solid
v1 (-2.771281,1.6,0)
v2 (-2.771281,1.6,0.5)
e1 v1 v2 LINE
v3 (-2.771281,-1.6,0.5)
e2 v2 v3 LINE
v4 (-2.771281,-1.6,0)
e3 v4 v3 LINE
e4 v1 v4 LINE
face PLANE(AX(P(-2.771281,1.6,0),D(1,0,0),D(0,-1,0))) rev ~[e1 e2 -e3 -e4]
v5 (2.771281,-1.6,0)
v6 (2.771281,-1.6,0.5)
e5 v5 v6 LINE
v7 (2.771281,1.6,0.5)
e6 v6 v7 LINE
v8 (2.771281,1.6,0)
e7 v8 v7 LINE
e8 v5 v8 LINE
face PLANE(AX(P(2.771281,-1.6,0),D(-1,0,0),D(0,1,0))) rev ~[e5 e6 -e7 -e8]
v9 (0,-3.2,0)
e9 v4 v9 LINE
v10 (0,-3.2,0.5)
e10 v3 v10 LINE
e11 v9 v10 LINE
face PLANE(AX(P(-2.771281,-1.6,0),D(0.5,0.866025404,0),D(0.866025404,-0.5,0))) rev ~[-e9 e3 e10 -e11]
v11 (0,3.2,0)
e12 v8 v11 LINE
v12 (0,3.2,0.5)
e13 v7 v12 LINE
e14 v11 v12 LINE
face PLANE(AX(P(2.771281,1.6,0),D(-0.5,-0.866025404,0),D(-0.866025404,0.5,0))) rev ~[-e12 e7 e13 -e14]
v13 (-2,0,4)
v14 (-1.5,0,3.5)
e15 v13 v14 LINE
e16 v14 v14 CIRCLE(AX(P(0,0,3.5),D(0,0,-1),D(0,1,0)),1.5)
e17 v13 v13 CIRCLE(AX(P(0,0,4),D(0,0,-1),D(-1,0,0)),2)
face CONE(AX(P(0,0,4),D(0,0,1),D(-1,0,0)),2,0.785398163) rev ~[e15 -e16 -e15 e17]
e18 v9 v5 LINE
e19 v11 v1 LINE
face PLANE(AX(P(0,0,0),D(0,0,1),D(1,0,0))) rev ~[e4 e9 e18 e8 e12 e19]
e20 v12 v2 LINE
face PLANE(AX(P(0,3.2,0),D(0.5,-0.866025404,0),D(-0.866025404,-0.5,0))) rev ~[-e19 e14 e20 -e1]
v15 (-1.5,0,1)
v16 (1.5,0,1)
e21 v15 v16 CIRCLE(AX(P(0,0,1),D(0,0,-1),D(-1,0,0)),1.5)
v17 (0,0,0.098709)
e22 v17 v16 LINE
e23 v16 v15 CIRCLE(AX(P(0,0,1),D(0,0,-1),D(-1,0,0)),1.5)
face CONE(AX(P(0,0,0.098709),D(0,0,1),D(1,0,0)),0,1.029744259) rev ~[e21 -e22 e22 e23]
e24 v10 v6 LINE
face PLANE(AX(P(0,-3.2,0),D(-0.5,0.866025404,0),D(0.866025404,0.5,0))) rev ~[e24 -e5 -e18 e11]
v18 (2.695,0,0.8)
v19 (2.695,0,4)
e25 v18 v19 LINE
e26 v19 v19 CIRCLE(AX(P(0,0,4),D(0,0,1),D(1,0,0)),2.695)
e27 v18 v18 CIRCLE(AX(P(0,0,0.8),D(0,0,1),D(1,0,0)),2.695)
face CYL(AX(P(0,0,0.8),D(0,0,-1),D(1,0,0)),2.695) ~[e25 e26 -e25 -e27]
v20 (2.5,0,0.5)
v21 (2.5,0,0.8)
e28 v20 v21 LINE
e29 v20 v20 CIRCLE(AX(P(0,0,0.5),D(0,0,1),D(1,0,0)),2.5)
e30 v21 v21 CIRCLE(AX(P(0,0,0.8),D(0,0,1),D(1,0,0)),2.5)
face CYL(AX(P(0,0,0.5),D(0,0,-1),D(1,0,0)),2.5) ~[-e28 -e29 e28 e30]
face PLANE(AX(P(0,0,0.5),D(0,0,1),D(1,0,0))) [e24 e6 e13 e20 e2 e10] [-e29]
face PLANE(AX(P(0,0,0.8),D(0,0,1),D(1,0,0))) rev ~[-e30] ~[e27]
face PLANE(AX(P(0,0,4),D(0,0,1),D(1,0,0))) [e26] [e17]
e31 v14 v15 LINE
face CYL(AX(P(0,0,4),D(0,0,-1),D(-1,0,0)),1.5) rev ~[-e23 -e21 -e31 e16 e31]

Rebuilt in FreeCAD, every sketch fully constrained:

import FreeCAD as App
import Part
import Sketcher

V = App.Vector
Q = App.Units.Quantity


def add_polygon(sketch, points):
    """Adds a closed chain of lines whose ends are joined by coincident constraints."""
    first, n = sketch.GeometryCount, len(points)
    for a, b in zip(points, points[1:] + points[:1]):
        sketch.addGeometry(Part.LineSegment(App.Vector(*a, 0), App.Vector(*b, 0)), False)
    for i in range(n):
        sketch.addConstraint(Sketcher.Constraint("Coincident", first + i, 2, first + (i + 1) % n, 1))

doc = App.newDocument("Part")
body = doc.addObject("PartDesign::Body", "Body")

# Sketch on XY plane
sketch1 = body.newObject("Sketcher::SketchObject", "Sketch")
sketch1.AttachmentSupport = (doc.getObject("XY_Plane"), [""])
sketch1.MapMode = "FlatFace"
add_polygon(sketch1, [(-2.771281, -1.6), (0, -3.2), (2.771281, -1.6), (2.771281, 1.6), (0, 3.2), (-2.771281, 1.6)])  # lines 0-5
sketch1.addConstraint(Sketcher.Constraint("Vertical", 2))
sketch1.addConstraint(Sketcher.Constraint("Vertical", 5))
sketch1.addConstraint(Sketcher.Constraint("Symmetric", 0, 2, 3, 2, -1, 1))
sketch1.addConstraint(Sketcher.Constraint("Symmetric", 1, 2, 4, 2, -1, 1))
sketch1.addConstraint(Sketcher.Constraint("PointOnObject", 0, 2, -2))
sketch1.addConstraint(Sketcher.Constraint("Parallel", 0, 3))
sketch1.addConstraint(Sketcher.Constraint("Horizontal", 2, 2, 4, 2))
sketch1.addConstraint(Sketcher.Constraint("Angle", 0, Q("-30 deg")))
sketch1.addConstraint(Sketcher.Constraint("DistanceY", 2, 1, 2, 2, Q("3.2 mm")))
sketch1.addConstraint(Sketcher.Constraint("Distance", 0, Q("3.2 mm")))
pad1 = body.newObject("PartDesign::Pad", "Pad")
pad1.Profile = sketch1
pad1.Length = 0.5

# Sketch on XY plane
sketch2 = body.newObject("Sketcher::SketchObject", "Sketch001")
sketch2.AttachmentSupport = (doc.getObject("XY_Plane"), [""])
sketch2.MapMode = "FlatFace"
sketch2.AttachmentOffset = App.Placement(V(0, 0, 0.5), App.Rotation())
sketch2.addGeometry(Part.Circle(V(0, 0, 0), V(0, 0, 1), 2.5), False)
sketch2.addConstraint(Sketcher.Constraint("Coincident", 0, 3, -1, 1))
sketch2.addConstraint(Sketcher.Constraint("Diameter", 0, Q("5 mm")))
pad2 = body.newObject("PartDesign::Pad", "Pad001")
pad2.Profile = sketch2
pad2.Length = 0.3

# Sketch on XY plane
sketch3 = body.newObject("Sketcher::SketchObject", "Sketch002")
sketch3.AttachmentSupport = (doc.getObject("XY_Plane"), [""])
sketch3.MapMode = "FlatFace"
sketch3.AttachmentOffset = App.Placement(V(0, 0, 0.8), App.Rotation())
sketch3.addGeometry(Part.Circle(V(0, 0, 0), V(0, 0, 1), 2.695), False)
sketch3.addConstraint(Sketcher.Constraint("Coincident", 0, 3, -1, 1))
sketch3.addConstraint(Sketcher.Constraint("Diameter", 0, Q("5.39 mm")))
pad3 = body.newObject("PartDesign::Pad", "Pad002")
pad3.Profile = sketch3
pad3.Length = 3.2

# Sketch on XY plane
sketch4 = body.newObject("Sketcher::SketchObject", "Sketch003")
sketch4.AttachmentSupport = (doc.getObject("XY_Plane"), [""])
sketch4.MapMode = "FlatFace"
sketch4.AttachmentOffset = App.Placement(V(0, 0, 4), App.Rotation())
sketch4.addGeometry(Part.Circle(V(0, 0, 0), V(0, 0, 1), 1.5), False)
sketch4.addConstraint(Sketcher.Constraint("Coincident", 0, 3, -1, 1))
sketch4.addConstraint(Sketcher.Constraint("Diameter", 0, Q("3 mm")))
doc.recompute()
hole = body.newObject("PartDesign::Hole", "Hole")
hole.Profile = sketch4
hole.ThreadType = "None"
hole.Diameter = 3
hole.DepthType = "Dimension"
hole.Depth = 3
hole.DrillPoint = "Angled"
hole.DrillPointAngle = 118
hole.HoleCutType = "Countersink"
hole.HoleCutDiameter = 4
hole.HoleCutCountersinkAngle = 90

doc.recompute()
